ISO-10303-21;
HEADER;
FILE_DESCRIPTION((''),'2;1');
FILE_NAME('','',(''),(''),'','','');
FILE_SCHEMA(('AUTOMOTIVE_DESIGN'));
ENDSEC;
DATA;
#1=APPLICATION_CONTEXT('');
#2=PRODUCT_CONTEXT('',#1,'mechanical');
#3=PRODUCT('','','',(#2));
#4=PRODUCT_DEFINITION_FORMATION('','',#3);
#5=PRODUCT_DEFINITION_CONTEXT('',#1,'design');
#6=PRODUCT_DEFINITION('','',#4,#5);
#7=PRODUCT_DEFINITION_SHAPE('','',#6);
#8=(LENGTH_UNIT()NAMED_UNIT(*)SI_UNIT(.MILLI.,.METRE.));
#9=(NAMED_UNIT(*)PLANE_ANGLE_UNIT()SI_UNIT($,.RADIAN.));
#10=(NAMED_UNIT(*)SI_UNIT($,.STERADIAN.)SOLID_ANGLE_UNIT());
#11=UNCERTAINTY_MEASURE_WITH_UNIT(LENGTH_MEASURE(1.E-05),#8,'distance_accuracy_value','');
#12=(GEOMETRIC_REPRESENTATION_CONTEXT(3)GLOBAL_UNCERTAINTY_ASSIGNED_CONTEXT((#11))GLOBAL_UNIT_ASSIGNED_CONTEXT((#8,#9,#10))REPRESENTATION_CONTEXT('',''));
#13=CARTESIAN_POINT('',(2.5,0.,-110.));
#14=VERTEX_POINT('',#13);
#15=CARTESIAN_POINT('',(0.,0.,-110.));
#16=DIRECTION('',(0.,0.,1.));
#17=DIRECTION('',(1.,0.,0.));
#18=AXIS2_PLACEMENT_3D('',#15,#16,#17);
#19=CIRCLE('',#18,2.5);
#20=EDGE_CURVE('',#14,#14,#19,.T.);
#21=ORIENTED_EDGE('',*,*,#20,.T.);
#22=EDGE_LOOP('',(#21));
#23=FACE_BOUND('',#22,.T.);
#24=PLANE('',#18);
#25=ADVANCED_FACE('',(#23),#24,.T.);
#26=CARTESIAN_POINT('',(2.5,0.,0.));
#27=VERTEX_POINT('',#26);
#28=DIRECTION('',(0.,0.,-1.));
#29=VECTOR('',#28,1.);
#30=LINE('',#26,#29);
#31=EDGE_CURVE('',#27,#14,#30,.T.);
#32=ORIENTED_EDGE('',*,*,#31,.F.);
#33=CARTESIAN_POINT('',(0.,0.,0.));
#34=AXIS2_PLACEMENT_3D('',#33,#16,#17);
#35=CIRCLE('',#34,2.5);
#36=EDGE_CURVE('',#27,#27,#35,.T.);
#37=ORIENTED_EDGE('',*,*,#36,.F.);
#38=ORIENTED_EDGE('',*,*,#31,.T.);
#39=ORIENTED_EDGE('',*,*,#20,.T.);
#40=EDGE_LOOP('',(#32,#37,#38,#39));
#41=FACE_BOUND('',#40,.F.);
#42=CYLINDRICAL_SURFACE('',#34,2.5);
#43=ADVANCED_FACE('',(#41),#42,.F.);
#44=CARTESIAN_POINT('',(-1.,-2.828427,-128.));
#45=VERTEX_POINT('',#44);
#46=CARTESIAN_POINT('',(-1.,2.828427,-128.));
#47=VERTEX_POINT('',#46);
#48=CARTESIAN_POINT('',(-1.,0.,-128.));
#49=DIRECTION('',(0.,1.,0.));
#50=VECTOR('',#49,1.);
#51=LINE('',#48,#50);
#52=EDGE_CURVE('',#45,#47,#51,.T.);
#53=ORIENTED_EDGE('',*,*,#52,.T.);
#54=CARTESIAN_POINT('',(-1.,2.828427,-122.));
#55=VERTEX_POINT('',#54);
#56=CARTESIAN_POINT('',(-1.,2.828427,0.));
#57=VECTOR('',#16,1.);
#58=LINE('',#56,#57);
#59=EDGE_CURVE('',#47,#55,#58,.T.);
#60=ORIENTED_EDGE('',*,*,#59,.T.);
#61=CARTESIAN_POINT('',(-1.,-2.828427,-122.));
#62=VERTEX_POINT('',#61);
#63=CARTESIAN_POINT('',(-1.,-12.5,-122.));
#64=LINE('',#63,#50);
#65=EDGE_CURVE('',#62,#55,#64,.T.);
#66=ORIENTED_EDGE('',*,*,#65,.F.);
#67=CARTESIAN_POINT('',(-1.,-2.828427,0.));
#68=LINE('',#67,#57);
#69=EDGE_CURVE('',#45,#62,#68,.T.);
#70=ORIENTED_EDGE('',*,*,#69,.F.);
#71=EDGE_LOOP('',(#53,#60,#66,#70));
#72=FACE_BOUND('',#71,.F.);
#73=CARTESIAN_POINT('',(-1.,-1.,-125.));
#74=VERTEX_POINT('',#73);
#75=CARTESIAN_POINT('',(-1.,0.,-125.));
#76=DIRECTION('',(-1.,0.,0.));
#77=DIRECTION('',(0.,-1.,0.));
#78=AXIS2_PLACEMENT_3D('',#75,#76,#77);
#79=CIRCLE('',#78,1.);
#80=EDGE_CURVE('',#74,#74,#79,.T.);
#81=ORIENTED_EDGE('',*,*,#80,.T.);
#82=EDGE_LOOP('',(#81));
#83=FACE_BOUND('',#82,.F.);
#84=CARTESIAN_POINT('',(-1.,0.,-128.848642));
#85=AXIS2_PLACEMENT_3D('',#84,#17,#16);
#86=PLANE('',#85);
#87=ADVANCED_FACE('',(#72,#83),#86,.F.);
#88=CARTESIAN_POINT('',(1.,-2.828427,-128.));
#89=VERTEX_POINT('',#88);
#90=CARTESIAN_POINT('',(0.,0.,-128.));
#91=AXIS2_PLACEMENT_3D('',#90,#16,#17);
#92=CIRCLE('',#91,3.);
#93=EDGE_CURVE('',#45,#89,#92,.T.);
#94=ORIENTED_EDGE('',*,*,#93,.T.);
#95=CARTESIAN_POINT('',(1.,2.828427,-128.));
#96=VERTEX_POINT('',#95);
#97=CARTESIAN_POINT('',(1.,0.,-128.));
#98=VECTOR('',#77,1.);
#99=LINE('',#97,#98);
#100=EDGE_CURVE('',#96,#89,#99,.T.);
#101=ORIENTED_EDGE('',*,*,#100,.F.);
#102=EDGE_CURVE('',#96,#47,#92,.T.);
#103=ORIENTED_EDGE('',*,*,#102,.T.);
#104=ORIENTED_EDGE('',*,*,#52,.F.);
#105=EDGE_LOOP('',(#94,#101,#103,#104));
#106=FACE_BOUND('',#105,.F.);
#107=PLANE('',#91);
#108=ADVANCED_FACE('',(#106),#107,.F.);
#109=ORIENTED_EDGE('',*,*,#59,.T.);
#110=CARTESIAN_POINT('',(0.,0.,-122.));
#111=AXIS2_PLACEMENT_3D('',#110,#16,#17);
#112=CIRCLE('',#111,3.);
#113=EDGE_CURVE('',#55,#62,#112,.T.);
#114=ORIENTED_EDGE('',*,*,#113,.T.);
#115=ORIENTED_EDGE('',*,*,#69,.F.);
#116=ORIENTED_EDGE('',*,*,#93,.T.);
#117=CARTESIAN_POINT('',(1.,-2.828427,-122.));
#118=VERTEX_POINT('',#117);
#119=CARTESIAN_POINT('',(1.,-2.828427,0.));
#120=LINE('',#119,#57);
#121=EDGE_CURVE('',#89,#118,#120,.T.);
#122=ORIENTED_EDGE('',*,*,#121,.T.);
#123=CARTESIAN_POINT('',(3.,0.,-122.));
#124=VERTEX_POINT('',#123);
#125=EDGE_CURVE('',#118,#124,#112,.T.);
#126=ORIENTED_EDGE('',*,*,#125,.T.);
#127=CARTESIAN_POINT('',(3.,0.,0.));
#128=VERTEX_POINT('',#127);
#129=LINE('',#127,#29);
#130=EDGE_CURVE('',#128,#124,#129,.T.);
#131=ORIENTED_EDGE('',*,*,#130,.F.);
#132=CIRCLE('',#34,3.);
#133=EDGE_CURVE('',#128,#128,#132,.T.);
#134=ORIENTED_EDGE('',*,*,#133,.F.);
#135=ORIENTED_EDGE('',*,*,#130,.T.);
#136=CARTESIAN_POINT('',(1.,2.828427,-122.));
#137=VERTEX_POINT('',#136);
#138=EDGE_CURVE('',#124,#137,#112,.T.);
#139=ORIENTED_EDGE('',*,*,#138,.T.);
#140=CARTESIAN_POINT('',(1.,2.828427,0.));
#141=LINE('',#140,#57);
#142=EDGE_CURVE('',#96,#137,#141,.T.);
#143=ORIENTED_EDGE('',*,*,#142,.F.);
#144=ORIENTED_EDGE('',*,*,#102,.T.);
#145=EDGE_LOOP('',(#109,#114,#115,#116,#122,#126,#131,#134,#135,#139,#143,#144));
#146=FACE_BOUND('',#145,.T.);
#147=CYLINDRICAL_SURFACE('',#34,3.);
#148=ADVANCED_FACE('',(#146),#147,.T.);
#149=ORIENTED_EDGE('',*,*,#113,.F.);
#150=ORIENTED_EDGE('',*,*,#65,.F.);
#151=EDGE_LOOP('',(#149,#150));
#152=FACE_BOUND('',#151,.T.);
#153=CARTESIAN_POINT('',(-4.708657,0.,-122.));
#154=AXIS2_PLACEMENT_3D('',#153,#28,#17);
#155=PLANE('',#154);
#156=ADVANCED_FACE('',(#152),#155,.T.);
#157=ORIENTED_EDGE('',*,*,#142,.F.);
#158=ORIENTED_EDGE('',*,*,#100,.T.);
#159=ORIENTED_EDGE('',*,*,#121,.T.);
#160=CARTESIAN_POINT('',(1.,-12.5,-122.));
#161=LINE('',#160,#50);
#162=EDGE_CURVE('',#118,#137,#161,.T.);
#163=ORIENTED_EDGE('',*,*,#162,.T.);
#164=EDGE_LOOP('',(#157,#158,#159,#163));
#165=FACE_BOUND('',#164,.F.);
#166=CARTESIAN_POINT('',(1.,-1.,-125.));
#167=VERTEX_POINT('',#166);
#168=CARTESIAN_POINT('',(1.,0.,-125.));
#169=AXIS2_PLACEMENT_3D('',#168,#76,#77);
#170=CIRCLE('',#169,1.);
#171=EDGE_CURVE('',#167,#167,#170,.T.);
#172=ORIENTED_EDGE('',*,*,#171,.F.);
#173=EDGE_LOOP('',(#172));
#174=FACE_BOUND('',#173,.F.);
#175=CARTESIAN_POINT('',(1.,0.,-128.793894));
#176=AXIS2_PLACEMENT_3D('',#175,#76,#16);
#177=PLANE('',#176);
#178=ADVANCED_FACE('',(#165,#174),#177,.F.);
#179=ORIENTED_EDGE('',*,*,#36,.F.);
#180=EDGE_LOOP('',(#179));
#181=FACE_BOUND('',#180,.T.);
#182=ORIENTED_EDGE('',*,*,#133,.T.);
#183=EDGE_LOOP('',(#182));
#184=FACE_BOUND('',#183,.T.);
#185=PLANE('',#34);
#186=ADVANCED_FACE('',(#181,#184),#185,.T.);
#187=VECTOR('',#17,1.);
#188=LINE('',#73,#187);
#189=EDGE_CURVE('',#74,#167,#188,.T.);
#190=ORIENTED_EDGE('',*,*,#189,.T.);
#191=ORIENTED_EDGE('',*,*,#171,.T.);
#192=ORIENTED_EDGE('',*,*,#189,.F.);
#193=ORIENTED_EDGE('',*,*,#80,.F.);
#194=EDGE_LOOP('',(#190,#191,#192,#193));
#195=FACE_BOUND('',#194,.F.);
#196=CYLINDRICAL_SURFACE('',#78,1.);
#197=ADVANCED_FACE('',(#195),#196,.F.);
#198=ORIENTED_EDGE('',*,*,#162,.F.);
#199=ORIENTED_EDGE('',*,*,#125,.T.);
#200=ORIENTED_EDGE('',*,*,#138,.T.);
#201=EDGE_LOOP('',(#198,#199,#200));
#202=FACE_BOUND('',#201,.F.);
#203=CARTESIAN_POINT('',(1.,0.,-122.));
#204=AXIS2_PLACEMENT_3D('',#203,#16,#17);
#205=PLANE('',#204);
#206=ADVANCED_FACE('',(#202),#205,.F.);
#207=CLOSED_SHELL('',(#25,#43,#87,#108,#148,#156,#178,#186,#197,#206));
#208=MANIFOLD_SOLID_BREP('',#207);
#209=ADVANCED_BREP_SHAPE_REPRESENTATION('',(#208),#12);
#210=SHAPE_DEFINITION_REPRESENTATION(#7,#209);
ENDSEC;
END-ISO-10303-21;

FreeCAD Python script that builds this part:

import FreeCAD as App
import Part
import Sketcher
from FreeCAD import Vector


def add_polygon(sketch, points):
    """Adds a closed chain of lines whose ends are joined by coincident constraints."""
    first, n = sketch.GeometryCount, len(points)
    for a, b in zip(points, points[1:] + points[:1]):
        sketch.addGeometry(Part.LineSegment(App.Vector(*a, 0), App.Vector(*b, 0)), False)
    for i in range(n):
        sketch.addConstraint(Sketcher.Constraint("Coincident", first + i, 2, first + (i + 1) % n, 1))

doc = App.newDocument("Part")
params = doc.addObject("Spreadsheet::Sheet", "Params")
for row, (alias, value) in enumerate([
    ("sketch1_diameter", "6 mm"),
    ("pad1_length", "128 mm"),
    ("sketch2_diameter", "5 mm"),
    ("pocket1_length", "110 mm"),
    ("pocket2_length", "25 mm"),
    ("sketch4_diameter", "2 mm"),
    ("pocket3_length", "25 mm"),
], start=1):
    params.set(f"A{row}", alias)
    params.set(f"B{row}", "=" + value)
    params.setAlias(f"B{row}", alias)

body = doc.addObject("PartDesign::Body", "Body")

# Sketch on XY plane
sketch1 = body.newObject("Sketcher::SketchObject", "Sketch")
sketch1.AttachmentSupport = (doc.getObject("XY_Plane"), [""])
sketch1.MapMode = "FlatFace"
sketch1.addGeometry(Part.Circle(Vector(0, 0, 0), Vector(0, 0, 1), 3), False)
sketch1.addConstraint([
    Sketcher.Constraint("Coincident", 0, 3, -1, 1),
    Sketcher.Constraint("Diameter", 0, 6.0),
])
sketch1.setExpression("Constraints[1]", "Params.sketch1_diameter")
pad1 = body.newObject("PartDesign::Pad", "Pad")
pad1.Profile = sketch1
pad1.setExpression("Length", "Params.pad1_length")
pad1.Reversed = True

# Sketch on XY plane
sketch2 = body.newObject("Sketcher::SketchObject", "Sketch001")
sketch2.AttachmentSupport = (doc.getObject("XY_Plane"), [""])
sketch2.MapMode = "FlatFace"
sketch2.addGeometry(Part.Circle(Vector(0, 0, 0), Vector(0, 0, 1), 2.5), False)
sketch2.addConstraint([
    Sketcher.Constraint("Coincident", 0, 3, -1, 1),
    Sketcher.Constraint("Diameter", 0, 5.0),
])
sketch2.setExpression("Constraints[1]", "Params.sketch2_diameter")
pocket1 = body.newObject("PartDesign::Pocket", "Pocket")
pocket1.Profile = sketch2
pocket1.setExpression("Length", "Params.pocket1_length")

# Sketch on XZ plane
sketch3 = body.newObject("Sketcher::SketchObject", "Sketch002")
sketch3.AttachmentSupport = (doc.getObject("XZ_Plane"), [""])
sketch3.MapMode = "FlatFace"
add_polygon(sketch3, [(1, -122), (1, -128.793894), (4.289427, -128.793894), (4.289427, -122)])  # lines 0-3
add_polygon(sketch3, [(-4.708657, -122), (-4.708657, -128.848642), (-1, -128.848642), (-1, -122)])  # lines 4-7
sketch3.addConstraint([
    Sketcher.Constraint("Vertical", 0),
    Sketcher.Constraint("Horizontal", 1),
    Sketcher.Constraint("Vertical", 2),
    Sketcher.Constraint("Horizontal", 3),
    Sketcher.Constraint("Vertical", 4),
    Sketcher.Constraint("Horizontal", 5),
    Sketcher.Constraint("Vertical", 6),
    Sketcher.Constraint("Horizontal", 7),
    Sketcher.Constraint("Symmetric", 3, 2, 6, 2, -2),
    Sketcher.Constraint("DistanceX", -1, 1, 0, 2, 1.0),
    Sketcher.Constraint("DistanceY", 2, 2, -1, 1, 122.0),
    Sketcher.Constraint("DistanceX", 1, 1, 1, 2, 3.289427),
    Sketcher.Constraint("DistanceX", 5, 1, 5, 2, 3.708657),
    Sketcher.Constraint("DistanceY", 0, 2, 0, 1, 6.793895),
    Sketcher.Constraint("DistanceY", 4, 2, 4, 1, 6.848642),
])
pocket2 = body.newObject("PartDesign::Pocket", "Pocket001")
pocket2.Profile = sketch3
pocket2.setExpression("Length", "Params.pocket2_length")
pocket2.Midplane = True

# Sketch on YZ plane
sketch4 = body.newObject("Sketcher::SketchObject", "Sketch003")
sketch4.AttachmentSupport = (doc.getObject("YZ_Plane"), [""])
sketch4.MapMode = "FlatFace"
sketch4.AttachmentOffset = App.Placement(Vector(0, 0, -1), App.Rotation())
sketch4.addGeometry(Part.Circle(Vector(0, -125, 0), Vector(0, 0, 1), 1), False)
sketch4.addConstraint([
    Sketcher.Constraint("PointOnObject", 0, 3, -2),
    Sketcher.Constraint("Diameter", 0, 2.0),
    Sketcher.Constraint("DistanceY", 0, 3, -1, 1, 125.0),
])
sketch4.setExpression("Constraints[1]", "Params.sketch4_diameter")
pocket3 = body.newObject("PartDesign::Pocket", "Pocket002")
pocket3.Profile = sketch4
pocket3.setExpression("Length", "Params.pocket3_length")
pocket3.Reversed = True

doc.recompute()
